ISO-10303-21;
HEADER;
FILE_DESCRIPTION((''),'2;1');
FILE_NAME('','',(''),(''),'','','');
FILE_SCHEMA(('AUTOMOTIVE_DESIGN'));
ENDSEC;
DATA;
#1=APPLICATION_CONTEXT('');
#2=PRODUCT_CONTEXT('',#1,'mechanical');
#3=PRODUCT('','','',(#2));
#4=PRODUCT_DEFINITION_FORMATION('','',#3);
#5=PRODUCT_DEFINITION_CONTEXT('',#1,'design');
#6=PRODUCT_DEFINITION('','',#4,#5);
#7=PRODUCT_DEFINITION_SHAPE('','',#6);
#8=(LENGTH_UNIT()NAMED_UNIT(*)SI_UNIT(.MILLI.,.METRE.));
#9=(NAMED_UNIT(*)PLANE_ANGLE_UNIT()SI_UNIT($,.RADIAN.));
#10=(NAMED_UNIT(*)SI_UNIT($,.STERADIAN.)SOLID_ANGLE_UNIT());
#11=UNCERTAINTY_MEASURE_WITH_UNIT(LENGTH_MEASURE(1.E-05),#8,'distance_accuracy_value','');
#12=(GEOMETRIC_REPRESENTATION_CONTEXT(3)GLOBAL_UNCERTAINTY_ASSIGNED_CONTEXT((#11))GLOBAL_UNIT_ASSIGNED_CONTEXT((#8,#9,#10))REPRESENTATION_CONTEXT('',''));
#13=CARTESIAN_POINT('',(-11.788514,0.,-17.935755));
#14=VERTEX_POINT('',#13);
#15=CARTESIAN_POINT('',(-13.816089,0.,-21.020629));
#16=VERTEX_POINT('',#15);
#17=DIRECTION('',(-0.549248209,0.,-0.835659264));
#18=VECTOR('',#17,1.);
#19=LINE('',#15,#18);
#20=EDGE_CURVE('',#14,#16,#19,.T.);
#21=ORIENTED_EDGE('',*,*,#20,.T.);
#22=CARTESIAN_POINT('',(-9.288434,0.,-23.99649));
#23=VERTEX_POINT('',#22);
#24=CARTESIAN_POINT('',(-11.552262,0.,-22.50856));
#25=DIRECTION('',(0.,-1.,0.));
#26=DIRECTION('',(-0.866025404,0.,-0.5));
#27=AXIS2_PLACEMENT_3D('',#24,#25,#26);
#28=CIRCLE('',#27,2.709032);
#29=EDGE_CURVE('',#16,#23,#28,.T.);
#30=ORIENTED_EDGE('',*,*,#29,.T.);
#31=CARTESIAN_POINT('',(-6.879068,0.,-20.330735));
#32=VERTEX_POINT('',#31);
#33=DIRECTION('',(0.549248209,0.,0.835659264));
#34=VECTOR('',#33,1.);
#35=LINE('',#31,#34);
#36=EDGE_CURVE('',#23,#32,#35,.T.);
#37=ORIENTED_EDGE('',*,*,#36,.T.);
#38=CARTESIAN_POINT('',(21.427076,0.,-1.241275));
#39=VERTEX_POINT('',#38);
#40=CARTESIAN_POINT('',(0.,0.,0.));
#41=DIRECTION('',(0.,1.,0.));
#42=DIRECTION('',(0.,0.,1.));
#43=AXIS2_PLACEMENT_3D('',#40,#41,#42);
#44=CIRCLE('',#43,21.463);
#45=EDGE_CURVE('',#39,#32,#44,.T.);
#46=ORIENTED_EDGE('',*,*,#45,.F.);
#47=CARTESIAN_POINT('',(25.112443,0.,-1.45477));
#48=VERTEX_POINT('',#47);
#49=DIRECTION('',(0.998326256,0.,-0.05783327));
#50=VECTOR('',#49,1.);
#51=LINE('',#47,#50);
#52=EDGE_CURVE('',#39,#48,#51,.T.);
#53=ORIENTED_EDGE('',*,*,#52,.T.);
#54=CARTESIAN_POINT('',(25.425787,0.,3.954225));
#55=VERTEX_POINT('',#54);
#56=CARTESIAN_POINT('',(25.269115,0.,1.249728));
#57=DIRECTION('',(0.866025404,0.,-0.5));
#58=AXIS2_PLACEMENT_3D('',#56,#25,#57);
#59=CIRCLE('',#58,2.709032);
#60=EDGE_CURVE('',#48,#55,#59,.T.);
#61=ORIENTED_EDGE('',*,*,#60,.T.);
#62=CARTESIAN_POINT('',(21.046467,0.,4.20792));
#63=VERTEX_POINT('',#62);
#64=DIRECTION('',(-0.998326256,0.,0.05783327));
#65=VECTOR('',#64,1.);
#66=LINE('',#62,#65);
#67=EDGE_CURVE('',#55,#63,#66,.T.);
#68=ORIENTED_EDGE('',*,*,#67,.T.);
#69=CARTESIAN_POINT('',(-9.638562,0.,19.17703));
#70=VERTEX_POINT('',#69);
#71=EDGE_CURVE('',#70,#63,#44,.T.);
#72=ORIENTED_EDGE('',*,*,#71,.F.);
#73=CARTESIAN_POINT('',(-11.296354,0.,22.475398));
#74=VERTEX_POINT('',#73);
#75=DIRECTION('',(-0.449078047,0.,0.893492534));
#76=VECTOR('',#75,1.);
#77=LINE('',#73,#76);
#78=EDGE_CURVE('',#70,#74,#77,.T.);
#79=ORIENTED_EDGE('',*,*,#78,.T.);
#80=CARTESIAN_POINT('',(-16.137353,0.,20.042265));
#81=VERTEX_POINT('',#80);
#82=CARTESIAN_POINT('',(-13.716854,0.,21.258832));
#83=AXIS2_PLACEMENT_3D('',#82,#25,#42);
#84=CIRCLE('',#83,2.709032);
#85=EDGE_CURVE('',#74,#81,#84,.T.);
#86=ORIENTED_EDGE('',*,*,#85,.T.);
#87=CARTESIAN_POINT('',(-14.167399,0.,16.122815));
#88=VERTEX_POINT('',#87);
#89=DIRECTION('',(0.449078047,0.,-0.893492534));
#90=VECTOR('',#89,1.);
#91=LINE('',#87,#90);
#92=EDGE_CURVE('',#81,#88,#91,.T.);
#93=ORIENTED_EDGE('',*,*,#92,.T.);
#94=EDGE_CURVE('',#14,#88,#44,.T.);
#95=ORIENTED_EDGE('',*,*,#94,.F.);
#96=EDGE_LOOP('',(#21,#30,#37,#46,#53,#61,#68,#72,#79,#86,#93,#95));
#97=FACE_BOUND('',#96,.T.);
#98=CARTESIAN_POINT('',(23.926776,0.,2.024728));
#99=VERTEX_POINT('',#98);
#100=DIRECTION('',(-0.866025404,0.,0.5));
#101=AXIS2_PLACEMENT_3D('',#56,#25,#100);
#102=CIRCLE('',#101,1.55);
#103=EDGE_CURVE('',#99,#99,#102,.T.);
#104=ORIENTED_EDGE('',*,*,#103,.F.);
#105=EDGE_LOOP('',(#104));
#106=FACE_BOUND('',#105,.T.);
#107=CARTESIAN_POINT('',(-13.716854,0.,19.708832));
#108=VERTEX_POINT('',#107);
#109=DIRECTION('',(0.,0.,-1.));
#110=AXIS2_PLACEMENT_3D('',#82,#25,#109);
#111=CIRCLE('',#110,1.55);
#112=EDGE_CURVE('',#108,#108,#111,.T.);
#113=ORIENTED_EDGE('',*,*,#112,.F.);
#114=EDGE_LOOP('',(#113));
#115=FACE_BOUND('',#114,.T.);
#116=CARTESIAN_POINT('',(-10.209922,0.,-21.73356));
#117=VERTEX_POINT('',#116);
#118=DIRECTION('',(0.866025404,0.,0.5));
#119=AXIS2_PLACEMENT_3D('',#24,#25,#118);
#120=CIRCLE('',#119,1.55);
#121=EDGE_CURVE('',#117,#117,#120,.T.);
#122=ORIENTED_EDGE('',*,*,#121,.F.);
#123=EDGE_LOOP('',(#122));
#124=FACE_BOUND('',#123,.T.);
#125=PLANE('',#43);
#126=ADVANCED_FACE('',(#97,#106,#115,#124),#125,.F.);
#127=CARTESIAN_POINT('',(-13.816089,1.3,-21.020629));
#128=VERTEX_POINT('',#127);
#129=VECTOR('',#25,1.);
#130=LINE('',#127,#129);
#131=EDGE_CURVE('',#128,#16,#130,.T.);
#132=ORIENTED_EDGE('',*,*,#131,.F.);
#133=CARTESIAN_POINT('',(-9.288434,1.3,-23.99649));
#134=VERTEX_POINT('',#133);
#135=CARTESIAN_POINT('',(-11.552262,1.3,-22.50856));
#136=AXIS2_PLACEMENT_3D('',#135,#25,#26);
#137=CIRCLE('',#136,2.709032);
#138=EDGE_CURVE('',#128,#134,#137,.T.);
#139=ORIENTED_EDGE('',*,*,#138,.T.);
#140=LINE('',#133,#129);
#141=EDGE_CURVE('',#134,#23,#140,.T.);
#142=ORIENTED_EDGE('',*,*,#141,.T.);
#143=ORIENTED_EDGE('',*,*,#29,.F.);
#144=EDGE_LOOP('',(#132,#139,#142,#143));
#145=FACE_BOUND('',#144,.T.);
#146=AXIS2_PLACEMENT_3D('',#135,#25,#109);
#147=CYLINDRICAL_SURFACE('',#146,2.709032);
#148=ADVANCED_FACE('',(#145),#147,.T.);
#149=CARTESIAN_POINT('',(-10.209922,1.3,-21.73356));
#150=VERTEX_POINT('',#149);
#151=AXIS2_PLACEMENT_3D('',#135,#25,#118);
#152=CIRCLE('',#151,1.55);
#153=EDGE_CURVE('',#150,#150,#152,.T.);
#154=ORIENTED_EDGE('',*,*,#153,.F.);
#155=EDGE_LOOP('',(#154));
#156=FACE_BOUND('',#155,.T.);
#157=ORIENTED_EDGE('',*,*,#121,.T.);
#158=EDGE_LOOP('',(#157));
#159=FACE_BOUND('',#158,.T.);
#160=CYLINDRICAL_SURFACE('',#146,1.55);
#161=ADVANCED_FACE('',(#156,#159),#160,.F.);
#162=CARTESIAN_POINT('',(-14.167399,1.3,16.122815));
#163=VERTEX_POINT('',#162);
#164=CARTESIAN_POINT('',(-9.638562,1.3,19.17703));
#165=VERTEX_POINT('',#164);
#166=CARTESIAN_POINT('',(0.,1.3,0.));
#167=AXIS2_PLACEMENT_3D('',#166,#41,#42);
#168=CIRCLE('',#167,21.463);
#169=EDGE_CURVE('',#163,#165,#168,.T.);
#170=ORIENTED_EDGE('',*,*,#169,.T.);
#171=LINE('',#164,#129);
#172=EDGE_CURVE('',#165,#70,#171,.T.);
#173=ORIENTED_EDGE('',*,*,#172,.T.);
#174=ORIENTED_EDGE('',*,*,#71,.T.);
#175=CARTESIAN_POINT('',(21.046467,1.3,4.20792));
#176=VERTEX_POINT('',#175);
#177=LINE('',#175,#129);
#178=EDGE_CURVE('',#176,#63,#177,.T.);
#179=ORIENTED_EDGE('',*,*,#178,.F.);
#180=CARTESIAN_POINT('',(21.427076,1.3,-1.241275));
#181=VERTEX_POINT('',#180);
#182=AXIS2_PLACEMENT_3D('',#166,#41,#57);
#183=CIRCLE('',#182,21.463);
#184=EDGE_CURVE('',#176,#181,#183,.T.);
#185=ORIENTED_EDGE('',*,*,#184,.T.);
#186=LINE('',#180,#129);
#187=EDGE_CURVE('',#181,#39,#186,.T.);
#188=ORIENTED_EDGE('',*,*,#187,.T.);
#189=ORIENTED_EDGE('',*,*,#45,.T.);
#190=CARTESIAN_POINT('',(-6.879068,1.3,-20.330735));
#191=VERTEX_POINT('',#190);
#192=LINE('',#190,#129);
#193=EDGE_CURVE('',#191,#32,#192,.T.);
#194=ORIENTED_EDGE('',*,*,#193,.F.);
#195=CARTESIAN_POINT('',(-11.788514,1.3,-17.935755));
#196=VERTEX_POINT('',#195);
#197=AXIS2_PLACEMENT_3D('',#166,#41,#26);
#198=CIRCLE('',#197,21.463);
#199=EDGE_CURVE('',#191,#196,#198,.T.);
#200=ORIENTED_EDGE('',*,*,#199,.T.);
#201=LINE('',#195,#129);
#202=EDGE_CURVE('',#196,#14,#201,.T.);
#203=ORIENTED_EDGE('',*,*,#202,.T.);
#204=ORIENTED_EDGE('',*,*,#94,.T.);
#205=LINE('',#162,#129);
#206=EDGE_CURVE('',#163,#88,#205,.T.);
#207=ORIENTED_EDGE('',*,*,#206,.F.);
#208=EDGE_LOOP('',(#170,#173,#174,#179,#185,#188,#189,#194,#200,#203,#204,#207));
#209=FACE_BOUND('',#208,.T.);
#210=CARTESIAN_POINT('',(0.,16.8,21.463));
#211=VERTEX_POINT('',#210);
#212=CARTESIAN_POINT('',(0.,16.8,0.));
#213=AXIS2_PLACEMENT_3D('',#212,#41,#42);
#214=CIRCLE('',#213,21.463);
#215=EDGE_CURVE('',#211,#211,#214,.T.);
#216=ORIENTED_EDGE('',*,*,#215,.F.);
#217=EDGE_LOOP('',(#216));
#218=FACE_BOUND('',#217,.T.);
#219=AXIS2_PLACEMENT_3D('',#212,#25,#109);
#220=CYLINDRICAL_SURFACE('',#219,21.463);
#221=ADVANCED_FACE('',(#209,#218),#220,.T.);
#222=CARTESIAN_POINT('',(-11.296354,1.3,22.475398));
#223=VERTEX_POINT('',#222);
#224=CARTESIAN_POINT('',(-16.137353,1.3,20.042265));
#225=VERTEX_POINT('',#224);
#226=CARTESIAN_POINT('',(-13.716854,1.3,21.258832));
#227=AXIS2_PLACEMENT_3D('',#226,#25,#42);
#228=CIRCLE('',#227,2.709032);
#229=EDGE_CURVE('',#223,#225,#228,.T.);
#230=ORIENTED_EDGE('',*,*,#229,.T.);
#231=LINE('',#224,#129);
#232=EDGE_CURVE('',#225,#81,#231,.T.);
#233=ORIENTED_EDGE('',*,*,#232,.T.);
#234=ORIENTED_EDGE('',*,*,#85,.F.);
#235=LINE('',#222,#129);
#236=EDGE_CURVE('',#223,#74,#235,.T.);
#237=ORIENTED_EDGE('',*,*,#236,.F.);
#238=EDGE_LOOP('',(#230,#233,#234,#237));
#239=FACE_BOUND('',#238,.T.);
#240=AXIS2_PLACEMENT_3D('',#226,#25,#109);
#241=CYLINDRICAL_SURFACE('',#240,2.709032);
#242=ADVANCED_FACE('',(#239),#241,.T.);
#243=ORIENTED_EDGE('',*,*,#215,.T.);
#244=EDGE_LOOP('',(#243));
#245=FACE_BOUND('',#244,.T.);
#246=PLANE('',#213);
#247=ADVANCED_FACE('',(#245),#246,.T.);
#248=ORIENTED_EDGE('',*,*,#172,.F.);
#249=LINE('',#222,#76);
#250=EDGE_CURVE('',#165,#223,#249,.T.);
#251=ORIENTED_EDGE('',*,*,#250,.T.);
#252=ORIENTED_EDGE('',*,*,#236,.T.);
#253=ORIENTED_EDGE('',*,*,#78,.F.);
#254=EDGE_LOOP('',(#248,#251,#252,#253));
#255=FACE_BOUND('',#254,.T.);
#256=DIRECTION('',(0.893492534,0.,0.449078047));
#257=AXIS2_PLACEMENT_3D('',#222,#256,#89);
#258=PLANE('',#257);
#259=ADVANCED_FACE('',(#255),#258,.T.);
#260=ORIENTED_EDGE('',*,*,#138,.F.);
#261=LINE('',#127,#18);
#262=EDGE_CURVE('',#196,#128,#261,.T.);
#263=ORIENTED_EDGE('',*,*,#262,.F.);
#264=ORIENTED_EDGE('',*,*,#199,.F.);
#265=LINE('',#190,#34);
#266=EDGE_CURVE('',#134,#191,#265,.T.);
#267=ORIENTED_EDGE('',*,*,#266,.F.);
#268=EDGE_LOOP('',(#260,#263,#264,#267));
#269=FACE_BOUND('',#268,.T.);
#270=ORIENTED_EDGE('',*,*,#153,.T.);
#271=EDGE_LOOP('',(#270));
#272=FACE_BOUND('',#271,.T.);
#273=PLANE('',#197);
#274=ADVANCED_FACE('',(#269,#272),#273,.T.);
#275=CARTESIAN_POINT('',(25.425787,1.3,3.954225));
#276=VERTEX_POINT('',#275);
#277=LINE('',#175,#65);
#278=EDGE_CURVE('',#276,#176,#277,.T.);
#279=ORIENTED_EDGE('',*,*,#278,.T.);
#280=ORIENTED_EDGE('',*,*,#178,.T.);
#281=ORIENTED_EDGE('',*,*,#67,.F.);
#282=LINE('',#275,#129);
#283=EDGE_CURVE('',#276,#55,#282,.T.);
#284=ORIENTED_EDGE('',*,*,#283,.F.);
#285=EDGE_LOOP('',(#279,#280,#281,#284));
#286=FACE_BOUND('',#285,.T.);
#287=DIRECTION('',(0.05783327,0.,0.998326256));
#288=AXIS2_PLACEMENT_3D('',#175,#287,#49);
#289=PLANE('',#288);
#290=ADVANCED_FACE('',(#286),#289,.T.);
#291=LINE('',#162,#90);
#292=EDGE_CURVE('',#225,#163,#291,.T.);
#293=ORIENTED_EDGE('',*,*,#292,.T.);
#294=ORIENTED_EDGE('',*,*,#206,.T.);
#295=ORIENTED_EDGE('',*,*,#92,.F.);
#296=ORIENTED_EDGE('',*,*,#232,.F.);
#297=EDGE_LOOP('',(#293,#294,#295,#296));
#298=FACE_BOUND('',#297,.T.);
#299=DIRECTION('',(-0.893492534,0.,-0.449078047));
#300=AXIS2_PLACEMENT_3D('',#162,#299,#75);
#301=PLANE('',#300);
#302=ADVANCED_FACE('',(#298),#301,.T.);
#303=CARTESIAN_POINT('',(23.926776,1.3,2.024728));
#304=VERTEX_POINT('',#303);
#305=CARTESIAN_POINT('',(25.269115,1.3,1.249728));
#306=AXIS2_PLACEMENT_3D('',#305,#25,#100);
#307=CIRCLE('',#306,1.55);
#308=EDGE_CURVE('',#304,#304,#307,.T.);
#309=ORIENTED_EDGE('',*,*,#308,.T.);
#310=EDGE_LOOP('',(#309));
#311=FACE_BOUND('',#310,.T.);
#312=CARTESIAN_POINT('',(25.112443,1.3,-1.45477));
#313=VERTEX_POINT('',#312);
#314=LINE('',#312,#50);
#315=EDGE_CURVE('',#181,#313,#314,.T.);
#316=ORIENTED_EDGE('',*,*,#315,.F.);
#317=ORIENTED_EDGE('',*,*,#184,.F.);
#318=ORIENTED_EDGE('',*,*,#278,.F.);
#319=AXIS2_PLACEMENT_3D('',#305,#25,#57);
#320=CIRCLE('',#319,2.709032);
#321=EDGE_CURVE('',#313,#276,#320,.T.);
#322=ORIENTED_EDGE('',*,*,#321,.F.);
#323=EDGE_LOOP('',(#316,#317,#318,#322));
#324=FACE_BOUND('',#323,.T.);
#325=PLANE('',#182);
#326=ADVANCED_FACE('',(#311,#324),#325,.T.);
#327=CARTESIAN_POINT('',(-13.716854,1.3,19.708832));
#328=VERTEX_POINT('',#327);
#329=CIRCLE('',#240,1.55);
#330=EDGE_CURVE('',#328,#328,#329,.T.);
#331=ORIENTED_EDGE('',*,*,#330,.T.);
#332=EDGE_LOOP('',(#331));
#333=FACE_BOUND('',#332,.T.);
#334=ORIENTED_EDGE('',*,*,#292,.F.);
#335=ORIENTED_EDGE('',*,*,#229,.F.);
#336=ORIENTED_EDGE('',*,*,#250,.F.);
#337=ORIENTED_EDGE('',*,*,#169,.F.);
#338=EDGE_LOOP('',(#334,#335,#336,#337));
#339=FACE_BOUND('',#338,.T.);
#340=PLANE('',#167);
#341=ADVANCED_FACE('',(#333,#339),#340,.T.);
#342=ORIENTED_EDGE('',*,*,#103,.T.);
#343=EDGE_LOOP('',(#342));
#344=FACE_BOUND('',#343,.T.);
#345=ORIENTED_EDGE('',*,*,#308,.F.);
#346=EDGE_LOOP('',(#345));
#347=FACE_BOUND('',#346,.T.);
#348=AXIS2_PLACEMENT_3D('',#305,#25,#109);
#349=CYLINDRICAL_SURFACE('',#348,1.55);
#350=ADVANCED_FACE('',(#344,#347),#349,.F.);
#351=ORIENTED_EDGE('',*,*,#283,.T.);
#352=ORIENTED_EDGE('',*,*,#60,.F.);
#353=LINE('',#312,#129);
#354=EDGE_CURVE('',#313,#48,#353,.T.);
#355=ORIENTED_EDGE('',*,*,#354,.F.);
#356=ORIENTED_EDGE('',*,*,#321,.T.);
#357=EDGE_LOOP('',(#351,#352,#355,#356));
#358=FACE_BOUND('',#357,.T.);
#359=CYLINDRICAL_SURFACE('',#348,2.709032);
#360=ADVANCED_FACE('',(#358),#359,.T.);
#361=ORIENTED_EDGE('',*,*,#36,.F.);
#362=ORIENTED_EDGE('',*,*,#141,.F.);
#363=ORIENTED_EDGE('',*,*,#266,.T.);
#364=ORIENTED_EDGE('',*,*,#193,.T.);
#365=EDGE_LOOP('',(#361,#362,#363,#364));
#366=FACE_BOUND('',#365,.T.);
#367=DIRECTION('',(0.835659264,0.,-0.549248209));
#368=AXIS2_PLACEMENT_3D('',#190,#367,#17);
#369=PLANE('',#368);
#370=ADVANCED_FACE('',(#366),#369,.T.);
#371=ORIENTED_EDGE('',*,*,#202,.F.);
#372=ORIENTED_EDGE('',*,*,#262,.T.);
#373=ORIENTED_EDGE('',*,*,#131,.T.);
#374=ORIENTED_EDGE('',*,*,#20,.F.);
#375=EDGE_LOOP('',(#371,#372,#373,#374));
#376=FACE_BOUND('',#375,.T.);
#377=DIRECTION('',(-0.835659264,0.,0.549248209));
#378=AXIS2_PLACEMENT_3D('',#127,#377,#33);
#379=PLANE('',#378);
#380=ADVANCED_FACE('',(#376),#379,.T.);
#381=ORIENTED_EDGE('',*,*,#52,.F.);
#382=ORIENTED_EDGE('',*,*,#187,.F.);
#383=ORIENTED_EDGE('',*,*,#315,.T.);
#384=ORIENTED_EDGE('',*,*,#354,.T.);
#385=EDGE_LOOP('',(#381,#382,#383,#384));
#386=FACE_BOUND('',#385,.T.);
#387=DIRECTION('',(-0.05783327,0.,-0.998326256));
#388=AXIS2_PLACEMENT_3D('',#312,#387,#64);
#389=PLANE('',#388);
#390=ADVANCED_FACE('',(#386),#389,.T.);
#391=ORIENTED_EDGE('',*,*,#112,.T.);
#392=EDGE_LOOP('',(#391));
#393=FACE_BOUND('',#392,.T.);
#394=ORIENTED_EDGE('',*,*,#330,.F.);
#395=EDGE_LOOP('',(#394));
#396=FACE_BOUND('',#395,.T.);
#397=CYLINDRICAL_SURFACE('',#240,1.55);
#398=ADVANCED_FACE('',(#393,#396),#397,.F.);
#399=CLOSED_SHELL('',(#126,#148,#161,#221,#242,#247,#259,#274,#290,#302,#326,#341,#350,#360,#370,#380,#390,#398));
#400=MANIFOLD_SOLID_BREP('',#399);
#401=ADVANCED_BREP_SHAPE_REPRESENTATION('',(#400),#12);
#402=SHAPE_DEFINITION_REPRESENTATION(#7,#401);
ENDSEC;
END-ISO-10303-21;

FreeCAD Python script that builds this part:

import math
import FreeCAD as App
import Part
import Sketcher

V = App.Vector
Q = App.Units.Quantity

doc = App.newDocument("Part")
body = doc.addObject("PartDesign::Body", "Body")

sketch1 = doc.addObject("Sketcher::SketchObject", "Sketch")
body.addObject(sketch1)
sketch1.AttachmentSupport = (doc.XZ_Plane, [""])
sketch1.MapMode = "FlatFace"
sketch1.addGeometry(Part.Circle(V(0, 0, 0), V(0, 0, 1), 21), False)
sketch1.addConstraint(Sketcher.Constraint("Coincident", 0, 3, -1, 1))
sketch1.addConstraint(Sketcher.Constraint("Diameter", 0, Q("42.926 mm")))
pad1 = doc.addObject("PartDesign::Pad", "Pad")
body.addObject(pad1)
pad1.Profile = sketch1
pad1.Length = 16.8
pad1.Reversed = True

sketch2 = doc.addObject("Sketcher::SketchObject", "Sketch001")
body.addObject(sketch2)
sketch2.AttachmentSupport = (doc.XZ_Plane, [""])
sketch2.MapMode = "FlatFace"
sketch2.addGeometry(Part.LineSegment(V(-16.1, 20, 0), V(-14.2, 16.1, 0)), False)
sketch2.addGeometry(Part.ArcOfCircle(Part.Circle(V(0, 0, 0), V(0, 0, 1), 21.5), math.radians(116.68), math.radians(131.31)), False)
sketch2.addGeometry(Part.LineSegment(V(-9.6, 19.2, 0), V(-11.3, 22.5, 0)), False)
sketch2.addGeometry(Part.ArcOfCircle(Part.Circle(V(-13.7, 21.3, 0), V(0, 0, 1), 2.7), math.radians(27), math.radians(207)), False)
sketch2.addGeometry(Part.Circle(V(-13.7, 21.3, 0), V(0, 0, 1), 1.6), False)
sketch2.addConstraint(Sketcher.Constraint("Coincident", 0, 2, 1, 2))
sketch2.addConstraint(Sketcher.Constraint("Coincident", 1, 1, 2, 1))
sketch2.addConstraint(Sketcher.Constraint("Tangent", 2, 2, 3, 1))
sketch2.addConstraint(Sketcher.Constraint("Tangent", 3, 2, 0, 1))
sketch2.addConstraint(Sketcher.Constraint("Coincident", 1, 3, -1, 1))
sketch2.addConstraint(Sketcher.Constraint("Coincident", 4, 3, 3, 3))
sketch2.addConstraint(Sketcher.Constraint("Parallel", 0, 2))
sketch2.addConstraint(Sketcher.Constraint("Diameter", 4, Q("3.1 mm")))
sketch2.addConstraint(Sketcher.Constraint("Radius", 1, Q("21.463 mm")))
sketch2.addConstraint(Sketcher.Constraint("Radius", 3, Q("2.709032 mm")))
sketch2.addConstraint(Sketcher.Constraint("DistanceX", 3, 2, 2, 2, Q("4.840999 mm")))
sketch2.addConstraint(Sketcher.Constraint("DistanceX", 0, 2, -1, 1, Q("14.167399 mm")))
sketch2.addConstraint(Sketcher.Constraint("DistanceY", -1, 1, 2, 2, Q("22.475398 mm")))
pad2 = doc.addObject("PartDesign::Pad", "Pad001")
body.addObject(pad2)
pad2.Profile = sketch2
pad2.Length = 1.3
pad2.Reversed = True
doc.recompute()

polarpattern = doc.addObject("PartDesign::PolarPattern", "PolarPattern")
body.addObject(polarpattern)
polarpattern.Originals = [pad2]
polarpattern.Axis = (doc.Y_Axis, [""])
polarpattern.Angle = 360
polarpattern.Occurrences = 3
body.Tip = polarpattern

doc.recompute()
